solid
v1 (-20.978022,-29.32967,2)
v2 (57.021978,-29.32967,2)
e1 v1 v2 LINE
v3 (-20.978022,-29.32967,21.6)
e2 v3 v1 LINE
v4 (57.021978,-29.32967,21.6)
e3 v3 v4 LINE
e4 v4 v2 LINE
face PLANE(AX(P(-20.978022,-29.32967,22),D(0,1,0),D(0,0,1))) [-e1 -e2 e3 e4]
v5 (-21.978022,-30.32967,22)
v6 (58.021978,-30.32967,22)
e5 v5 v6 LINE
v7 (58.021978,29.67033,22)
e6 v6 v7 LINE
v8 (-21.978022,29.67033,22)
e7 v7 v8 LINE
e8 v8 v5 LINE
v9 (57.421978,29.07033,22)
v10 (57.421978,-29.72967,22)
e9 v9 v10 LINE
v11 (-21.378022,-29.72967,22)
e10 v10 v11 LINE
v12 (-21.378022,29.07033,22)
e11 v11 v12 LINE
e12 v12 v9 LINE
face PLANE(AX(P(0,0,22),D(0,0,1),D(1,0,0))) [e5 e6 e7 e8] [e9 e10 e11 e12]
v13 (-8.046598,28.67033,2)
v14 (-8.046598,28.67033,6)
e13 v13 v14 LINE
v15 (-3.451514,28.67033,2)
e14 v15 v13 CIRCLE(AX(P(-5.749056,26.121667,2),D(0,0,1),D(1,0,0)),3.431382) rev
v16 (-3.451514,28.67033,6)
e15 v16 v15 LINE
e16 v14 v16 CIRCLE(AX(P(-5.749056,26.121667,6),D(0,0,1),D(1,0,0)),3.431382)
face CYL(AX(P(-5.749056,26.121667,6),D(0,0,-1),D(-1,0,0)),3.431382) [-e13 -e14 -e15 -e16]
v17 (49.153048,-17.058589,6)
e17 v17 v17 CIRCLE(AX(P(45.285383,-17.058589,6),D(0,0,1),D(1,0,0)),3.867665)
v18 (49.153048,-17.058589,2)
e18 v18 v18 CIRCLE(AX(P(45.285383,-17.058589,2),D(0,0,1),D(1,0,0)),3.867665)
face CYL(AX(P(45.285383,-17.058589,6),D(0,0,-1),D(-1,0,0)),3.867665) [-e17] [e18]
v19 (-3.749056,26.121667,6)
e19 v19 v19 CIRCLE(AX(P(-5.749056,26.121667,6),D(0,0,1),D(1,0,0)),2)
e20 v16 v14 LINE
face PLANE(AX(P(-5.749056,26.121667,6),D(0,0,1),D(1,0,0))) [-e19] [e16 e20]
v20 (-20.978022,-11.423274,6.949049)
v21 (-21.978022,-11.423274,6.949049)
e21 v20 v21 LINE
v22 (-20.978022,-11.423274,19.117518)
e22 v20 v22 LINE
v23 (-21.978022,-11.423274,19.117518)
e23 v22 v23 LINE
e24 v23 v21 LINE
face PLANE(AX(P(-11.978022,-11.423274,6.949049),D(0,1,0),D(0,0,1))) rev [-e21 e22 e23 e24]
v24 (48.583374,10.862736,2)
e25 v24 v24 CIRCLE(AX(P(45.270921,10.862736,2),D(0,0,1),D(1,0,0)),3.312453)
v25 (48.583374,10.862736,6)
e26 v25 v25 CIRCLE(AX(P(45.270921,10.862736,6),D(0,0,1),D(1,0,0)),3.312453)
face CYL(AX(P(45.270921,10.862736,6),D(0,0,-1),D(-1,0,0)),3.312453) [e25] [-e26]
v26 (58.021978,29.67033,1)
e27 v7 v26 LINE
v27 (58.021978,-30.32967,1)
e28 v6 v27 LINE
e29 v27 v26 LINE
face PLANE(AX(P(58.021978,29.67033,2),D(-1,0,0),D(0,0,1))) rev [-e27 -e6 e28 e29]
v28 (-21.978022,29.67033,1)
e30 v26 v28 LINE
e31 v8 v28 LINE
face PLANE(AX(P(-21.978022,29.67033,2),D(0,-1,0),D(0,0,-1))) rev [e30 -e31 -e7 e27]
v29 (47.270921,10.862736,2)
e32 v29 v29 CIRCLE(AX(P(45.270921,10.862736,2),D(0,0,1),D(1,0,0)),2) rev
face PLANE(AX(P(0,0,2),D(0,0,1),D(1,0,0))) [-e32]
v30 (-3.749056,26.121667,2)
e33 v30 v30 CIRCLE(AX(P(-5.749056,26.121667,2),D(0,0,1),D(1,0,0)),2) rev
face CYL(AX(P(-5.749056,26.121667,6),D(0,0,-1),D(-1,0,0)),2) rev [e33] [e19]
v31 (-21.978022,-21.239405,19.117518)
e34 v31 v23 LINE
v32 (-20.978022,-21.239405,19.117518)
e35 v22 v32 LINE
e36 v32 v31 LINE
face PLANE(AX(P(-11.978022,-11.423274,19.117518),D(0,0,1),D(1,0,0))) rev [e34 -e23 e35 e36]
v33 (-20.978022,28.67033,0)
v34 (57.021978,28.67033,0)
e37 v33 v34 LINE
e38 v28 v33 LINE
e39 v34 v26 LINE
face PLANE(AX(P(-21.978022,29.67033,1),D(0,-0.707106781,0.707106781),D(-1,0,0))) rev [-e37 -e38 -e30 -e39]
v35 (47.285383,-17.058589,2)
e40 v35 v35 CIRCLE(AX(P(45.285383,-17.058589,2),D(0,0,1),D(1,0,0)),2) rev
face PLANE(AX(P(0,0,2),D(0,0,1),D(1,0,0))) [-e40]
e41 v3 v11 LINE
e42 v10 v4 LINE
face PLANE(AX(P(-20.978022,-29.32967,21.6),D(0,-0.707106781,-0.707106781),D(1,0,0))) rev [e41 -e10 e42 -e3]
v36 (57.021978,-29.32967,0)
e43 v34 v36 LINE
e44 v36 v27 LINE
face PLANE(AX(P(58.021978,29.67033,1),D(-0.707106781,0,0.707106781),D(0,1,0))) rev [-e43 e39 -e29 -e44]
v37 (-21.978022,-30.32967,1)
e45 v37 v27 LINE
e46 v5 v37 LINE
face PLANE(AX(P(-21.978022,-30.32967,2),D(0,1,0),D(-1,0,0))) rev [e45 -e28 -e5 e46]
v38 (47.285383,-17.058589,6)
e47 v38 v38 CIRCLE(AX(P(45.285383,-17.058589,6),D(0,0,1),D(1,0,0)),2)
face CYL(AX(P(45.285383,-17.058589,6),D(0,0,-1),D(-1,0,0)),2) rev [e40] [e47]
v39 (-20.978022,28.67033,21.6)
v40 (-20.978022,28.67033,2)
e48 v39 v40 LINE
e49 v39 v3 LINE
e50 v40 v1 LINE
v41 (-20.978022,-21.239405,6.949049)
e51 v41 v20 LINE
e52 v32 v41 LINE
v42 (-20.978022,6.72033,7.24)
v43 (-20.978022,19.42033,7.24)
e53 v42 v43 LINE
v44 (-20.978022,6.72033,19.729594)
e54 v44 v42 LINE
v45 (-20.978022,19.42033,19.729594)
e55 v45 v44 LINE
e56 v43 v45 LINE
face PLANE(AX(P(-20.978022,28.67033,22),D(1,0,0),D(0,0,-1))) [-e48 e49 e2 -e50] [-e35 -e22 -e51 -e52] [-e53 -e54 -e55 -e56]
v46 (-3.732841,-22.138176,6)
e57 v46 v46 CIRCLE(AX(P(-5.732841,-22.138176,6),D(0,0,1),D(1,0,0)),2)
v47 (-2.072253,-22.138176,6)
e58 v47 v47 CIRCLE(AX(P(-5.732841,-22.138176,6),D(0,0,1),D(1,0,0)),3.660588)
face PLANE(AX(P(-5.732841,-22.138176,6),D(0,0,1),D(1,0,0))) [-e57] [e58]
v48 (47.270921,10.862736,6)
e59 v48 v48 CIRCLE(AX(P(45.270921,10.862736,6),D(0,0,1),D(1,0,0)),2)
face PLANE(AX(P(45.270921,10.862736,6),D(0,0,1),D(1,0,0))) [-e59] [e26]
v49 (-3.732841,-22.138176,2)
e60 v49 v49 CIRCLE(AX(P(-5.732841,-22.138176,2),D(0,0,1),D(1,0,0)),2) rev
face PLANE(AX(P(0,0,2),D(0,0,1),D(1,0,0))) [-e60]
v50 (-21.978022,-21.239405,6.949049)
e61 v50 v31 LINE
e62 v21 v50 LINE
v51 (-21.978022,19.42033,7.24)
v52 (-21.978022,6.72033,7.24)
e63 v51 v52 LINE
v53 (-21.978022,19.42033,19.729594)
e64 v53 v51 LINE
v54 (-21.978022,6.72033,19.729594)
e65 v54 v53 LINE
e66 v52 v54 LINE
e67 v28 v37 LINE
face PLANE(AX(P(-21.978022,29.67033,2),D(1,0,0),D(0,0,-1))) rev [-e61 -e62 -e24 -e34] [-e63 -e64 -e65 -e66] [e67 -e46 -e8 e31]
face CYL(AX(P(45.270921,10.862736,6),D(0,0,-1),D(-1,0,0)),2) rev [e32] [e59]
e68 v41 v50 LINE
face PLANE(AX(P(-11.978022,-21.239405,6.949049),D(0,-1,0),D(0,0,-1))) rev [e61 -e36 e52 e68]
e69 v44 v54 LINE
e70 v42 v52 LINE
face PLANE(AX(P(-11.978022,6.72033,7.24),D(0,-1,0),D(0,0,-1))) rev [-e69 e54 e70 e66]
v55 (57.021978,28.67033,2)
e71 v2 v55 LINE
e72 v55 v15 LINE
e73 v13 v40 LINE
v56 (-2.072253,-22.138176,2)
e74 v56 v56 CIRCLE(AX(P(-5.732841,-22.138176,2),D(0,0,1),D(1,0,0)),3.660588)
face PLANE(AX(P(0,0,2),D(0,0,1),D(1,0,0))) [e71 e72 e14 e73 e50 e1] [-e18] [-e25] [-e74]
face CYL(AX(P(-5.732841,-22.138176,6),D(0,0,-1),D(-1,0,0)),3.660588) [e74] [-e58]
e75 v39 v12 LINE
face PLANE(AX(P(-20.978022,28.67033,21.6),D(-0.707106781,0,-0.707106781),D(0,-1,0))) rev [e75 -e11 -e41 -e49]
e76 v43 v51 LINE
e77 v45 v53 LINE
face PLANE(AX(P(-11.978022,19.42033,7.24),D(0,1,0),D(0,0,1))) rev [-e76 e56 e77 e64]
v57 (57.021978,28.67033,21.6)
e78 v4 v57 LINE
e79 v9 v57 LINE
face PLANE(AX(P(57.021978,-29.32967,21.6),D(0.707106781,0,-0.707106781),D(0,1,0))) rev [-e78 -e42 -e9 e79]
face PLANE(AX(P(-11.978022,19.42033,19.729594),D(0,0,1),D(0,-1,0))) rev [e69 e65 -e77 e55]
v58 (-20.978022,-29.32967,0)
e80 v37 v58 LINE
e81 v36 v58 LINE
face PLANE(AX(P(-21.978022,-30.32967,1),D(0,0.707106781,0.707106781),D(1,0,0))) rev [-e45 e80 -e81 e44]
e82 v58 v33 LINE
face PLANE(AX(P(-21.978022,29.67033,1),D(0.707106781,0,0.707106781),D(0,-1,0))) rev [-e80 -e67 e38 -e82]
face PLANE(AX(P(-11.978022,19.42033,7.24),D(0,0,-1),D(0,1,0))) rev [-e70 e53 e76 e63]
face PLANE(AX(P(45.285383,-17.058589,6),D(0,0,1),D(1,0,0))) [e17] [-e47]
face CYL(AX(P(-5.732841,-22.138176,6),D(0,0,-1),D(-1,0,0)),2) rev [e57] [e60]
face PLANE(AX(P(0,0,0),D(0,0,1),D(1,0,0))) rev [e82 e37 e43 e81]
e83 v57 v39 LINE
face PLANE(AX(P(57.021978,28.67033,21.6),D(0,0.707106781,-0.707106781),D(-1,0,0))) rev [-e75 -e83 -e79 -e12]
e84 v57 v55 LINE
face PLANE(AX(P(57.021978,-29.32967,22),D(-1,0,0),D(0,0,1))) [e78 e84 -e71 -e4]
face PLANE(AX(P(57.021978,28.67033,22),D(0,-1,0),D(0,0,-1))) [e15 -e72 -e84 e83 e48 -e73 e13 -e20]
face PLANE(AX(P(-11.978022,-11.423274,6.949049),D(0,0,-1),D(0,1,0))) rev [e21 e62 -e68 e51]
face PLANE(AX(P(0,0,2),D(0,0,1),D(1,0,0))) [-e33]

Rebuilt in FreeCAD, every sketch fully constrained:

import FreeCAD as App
import Part
import Sketcher
Q = App.Units.Quantity


def edges_at(feature, points):
    """Names of the edges that pass closest to the given points."""
    edges = feature.Shape.Edges
    near = lambda p: min(range(len(edges)), key=lambda i: edges[i].distToShape(Part.Vertex(*p))[0])
    return sorted({f"Edge{near(p) + 1}" for p in points})


def add_polygon(sketch, points):
    """Adds a closed chain of lines whose ends are joined by coincident constraints."""
    first, n = sketch.GeometryCount, len(points)
    for a, b in zip(points, points[1:] + points[:1]):
        sketch.addGeometry(Part.LineSegment(App.Vector(*a, 0), App.Vector(*b, 0)), False)
    for i in range(n):
        sketch.addConstraint(Sketcher.Constraint("Coincident", first + i, 2, first + (i + 1) % n, 1))

doc = App.newDocument("Part")
body = doc.addObject("PartDesign::Body", "Body")

# Sketch on XY plane
sketch1 = body.newObject("Sketcher::SketchObject", "Sketch")
sketch1.AttachmentSupport = (doc.getObject("XY_Plane"), [""])
sketch1.MapMode = "FlatFace"
add_polygon(sketch1, [(-22, 30), (-22, -30), (58, -30), (58, 30)])  # lines 0-3
sketch1.addConstraint([
    Sketcher.Constraint("Vertical", 0),
    Sketcher.Constraint("Horizontal", 1),
    Sketcher.Constraint("Vertical", 2),
    Sketcher.Constraint("Horizontal", 3),
    Sketcher.Constraint("DistanceX", 1, 1, 1, 2, Q("80 mm")),
    Sketcher.Constraint("DistanceY", 0, 2, 0, 1, Q("60 mm")),
    Sketcher.Constraint("DistanceX", 0, 2, -1, 1, Q("21.978022 mm")),
    Sketcher.Constraint("DistanceY", 0, 2, -1, 1, Q("30.32967 mm")),
])
pad1 = body.newObject("PartDesign::Pad", "Pad")
pad1.Profile = sketch1
pad1.Length = 2

# Sketch on XY plane
sketch2 = body.newObject("Sketcher::SketchObject", "Sketch001")
sketch2.AttachmentSupport = (doc.getObject("XY_Plane"), [""])
sketch2.MapMode = "FlatFace"
sketch2.AttachmentOffset = App.Placement(App.Vector(0, 0, 2), App.Rotation())
add_polygon(sketch2, [(-22, 30), (-22, -30), (58, -30), (58, 30)])  # lines 0-3
add_polygon(sketch2, [(57, -29), (-21, -29), (-21, 29), (57, 29)])  # lines 4-7
sketch2.addConstraint([
    Sketcher.Constraint("Vertical", 0),
    Sketcher.Constraint("Horizontal", 1),
    Sketcher.Constraint("Vertical", 2),
    Sketcher.Constraint("Horizontal", 3),
    Sketcher.Constraint("Horizontal", 4),
    Sketcher.Constraint("Vertical", 5),
    Sketcher.Constraint("Horizontal", 6),
    Sketcher.Constraint("Vertical", 7),
    Sketcher.Constraint("DistanceX", 1, 1, 1, 2, Q("80 mm")),
    Sketcher.Constraint("DistanceX", 4, 2, 4, 1, Q("78 mm")),
    Sketcher.Constraint("DistanceY", 0, 2, 0, 1, Q("60 mm")),
    Sketcher.Constraint("DistanceY", 5, 1, 5, 2, Q("58 mm")),
    Sketcher.Constraint("DistanceX", 0, 2, 4, 2, Q("1 mm")),
    Sketcher.Constraint("DistanceY", 0, 2, 4, 2, Q("1 mm")),
    Sketcher.Constraint("DistanceX", 0, 2, -1, 1, Q("21.978022 mm")),
    Sketcher.Constraint("DistanceY", 0, 2, -1, 1, Q("30.32967 mm")),
])
pad2 = body.newObject("PartDesign::Pad", "Pad001")
pad2.Profile = sketch2
pad2.Length = 20
doc.recompute()

chamfer = body.newObject("PartDesign::Chamfer", "Chamfer")
chamfer.Base = (pad2, edges_at(pad2, [
    (18.022, 29.67, 0),
    (58.022, -0.33, 0),
    (18.022, -30.33, 0),
    (-21.978, -0.33, 0),
]))
chamfer.Size = 1

# Sketch on YZ plane
sketch3 = body.newObject("Sketcher::SketchObject", "Sketch002")
sketch3.AttachmentSupport = (doc.getObject("YZ_Plane"), [""])
sketch3.MapMode = "FlatFace"
sketch3.AttachmentOffset = App.Placement(App.Vector(0, 0, -21.978022), App.Rotation())
add_polygon(sketch3, [(19, 7), (7, 7), (7, 20), (19, 20)])  # lines 0-3
add_polygon(sketch3, [(-11, 7), (-21, 7), (-21, 19), (-11, 19)])  # lines 4-7
sketch3.addConstraint([
    Sketcher.Constraint("Horizontal", 0),
    Sketcher.Constraint("Vertical", 1),
    Sketcher.Constraint("Horizontal", 2),
    Sketcher.Constraint("Vertical", 3),
    Sketcher.Constraint("Horizontal", 4),
    Sketcher.Constraint("Vertical", 5),
    Sketcher.Constraint("Horizontal", 6),
    Sketcher.Constraint("Vertical", 7),
    Sketcher.Constraint("DistanceX", 0, 2, 0, 1, Q("12.7 mm")),
    Sketcher.Constraint("DistanceY", -1, 1, 0, 2, Q("7.24 mm")),
    Sketcher.Constraint("DistanceX", 4, 2, 4, 1, Q("9.81613 mm")),
    Sketcher.Constraint("DistanceY", 5, 1, 5, 2, Q("12.168469 mm")),
    Sketcher.Constraint("DistanceY", 1, 1, 1, 2, Q("12.489594 mm")),
    Sketcher.Constraint("DistanceX", -1, 1, 0, 2, Q("6.72033 mm")),
    Sketcher.Constraint("DistanceY", -1, 1, 4, 2, Q("6.949049 mm")),
    Sketcher.Constraint("DistanceX", 4, 2, -1, 1, Q("21.239405 mm")),
])
pocket1 = body.newObject("PartDesign::Pocket", "Pocket")
pocket1.Profile = sketch3
pocket1.Length = 10
pocket1.Reversed = True

# Sketch on XY plane
sketch4 = body.newObject("Sketcher::SketchObject", "Sketch003")
sketch4.AttachmentSupport = (doc.getObject("XY_Plane"), [""])
sketch4.MapMode = "FlatFace"
sketch4.AttachmentOffset = App.Placement(App.Vector(0, 0, 2), App.Rotation())
sketch4.addGeometry([
    Part.Circle(App.Vector(-5.7, 26.1, 0), App.Vector(0, 0, 1), 3.4),  # 0
    Part.Circle(App.Vector(-5.7, 26.1, 0), App.Vector(0, 0, 1), 2),  # 1
    Part.Circle(App.Vector(45.3, 10.9, 0), App.Vector(0, 0, 1), 3.3),  # 2
    Part.Circle(App.Vector(45.3, 10.9, 0), App.Vector(0, 0, 1), 2),  # 3
    Part.Circle(App.Vector(45.3, -17.1, 0), App.Vector(0, 0, 1), 3.9),  # 4
    Part.Circle(App.Vector(45.3, -17.1, 0), App.Vector(0, 0, 1), 2),  # 5
    Part.Circle(App.Vector(-5.7, -22.1, 0), App.Vector(0, 0, 1), 3.7),  # 6
    Part.Circle(App.Vector(-5.7, -22.1, 0), App.Vector(0, 0, 1), 2),  # 7
], False)
sketch4.addConstraint([
    Sketcher.Constraint("Coincident", 1, 3, 0, 3),
    Sketcher.Constraint("Coincident", 3, 3, 2, 3),
    Sketcher.Constraint("Coincident", 5, 3, 4, 3),
    Sketcher.Constraint("Coincident", 7, 3, 6, 3),
    Sketcher.Constraint("Equal", 1, 3),
    Sketcher.Constraint("Equal", 3, 5),
    Sketcher.Constraint("Equal", 5, 7),
    Sketcher.Constraint("Diameter", 1, Q("4 mm")),
    Sketcher.Constraint("Diameter", 4, Q("7.73533 mm")),
    Sketcher.Constraint("Diameter", 0, Q("6.862764 mm")),
    Sketcher.Constraint("Diameter", 2, Q("6.624906 mm")),
    Sketcher.Constraint("Diameter", 6, Q("7.321177 mm")),
    Sketcher.Constraint("DistanceX", -1, 1, 2, 3, Q("45.270921 mm")),
    Sketcher.Constraint("DistanceY", 4, 3, -1, 1, Q("17.058589 mm")),
    Sketcher.Constraint("DistanceX", 6, 3, -1, 1, Q("5.732841 mm")),
    Sketcher.Constraint("DistanceY", 2, 3, 0, 3, Q("15.258931 mm")),
    Sketcher.Constraint("DistanceX", 0, 3, 4, 3, Q("51.034439 mm")),
    Sketcher.Constraint("DistanceX", 0, 3, -1, 1, Q("5.749056 mm")),
    Sketcher.Constraint("DistanceY", -1, 1, 0, 3, Q("26.121667 mm")),
    Sketcher.Constraint("DistanceY", 6, 3, -1, 1, Q("22.138176 mm")),
])
pad3 = body.newObject("PartDesign::Pad", "Pad002")
pad3.Profile = sketch4
pad3.Length = 4
doc.recompute()

chamfer2 = body.newObject("PartDesign::Chamfer", "Chamfer001")
chamfer2.Base = (pad3, edges_at(pad3, [
    (18.022, 28.67, 22),
    (-20.978, -0.33, 22),
    (18.022, -29.33, 22),
    (57.022, -0.33, 22),
]))
chamfer2.Size = 0.4

doc.recompute()
